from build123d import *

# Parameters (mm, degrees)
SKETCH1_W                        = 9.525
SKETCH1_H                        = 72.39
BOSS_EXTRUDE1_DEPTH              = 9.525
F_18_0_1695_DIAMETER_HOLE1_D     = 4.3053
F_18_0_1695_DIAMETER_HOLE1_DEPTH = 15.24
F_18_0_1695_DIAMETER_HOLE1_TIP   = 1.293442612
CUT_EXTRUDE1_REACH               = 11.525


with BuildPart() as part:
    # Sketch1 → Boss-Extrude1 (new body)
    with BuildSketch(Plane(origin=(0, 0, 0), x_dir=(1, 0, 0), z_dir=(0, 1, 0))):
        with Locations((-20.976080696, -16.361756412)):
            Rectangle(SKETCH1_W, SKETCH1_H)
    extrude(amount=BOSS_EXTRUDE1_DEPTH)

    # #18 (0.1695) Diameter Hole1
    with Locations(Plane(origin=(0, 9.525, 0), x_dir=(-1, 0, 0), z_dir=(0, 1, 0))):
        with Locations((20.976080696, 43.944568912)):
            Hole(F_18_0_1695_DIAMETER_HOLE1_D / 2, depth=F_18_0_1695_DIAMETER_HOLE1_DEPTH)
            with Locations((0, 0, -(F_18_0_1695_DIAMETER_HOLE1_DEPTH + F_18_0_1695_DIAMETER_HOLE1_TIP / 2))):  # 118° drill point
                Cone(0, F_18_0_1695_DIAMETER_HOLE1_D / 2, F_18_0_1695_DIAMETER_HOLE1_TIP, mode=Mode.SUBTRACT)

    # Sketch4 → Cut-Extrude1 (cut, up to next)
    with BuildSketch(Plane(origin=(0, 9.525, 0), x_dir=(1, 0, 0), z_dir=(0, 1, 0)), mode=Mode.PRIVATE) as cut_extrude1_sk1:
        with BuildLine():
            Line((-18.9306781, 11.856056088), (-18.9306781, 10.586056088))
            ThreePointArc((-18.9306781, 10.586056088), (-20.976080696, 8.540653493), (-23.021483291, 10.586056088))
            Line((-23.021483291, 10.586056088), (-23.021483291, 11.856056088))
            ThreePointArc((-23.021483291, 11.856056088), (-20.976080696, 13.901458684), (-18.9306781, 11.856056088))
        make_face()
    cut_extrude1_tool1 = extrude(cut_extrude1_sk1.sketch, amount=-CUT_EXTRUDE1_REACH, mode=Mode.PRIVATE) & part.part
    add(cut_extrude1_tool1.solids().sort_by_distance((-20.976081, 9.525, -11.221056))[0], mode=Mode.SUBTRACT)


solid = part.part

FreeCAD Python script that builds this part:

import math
import FreeCAD as App
import Part
import Sketcher
Q = App.Units.Quantity


def add_polygon(sketch, points):
    """Adds a closed chain of lines whose ends are joined by coincident constraints."""
    first, n = sketch.GeometryCount, len(points)
    for a, b in zip(points, points[1:] + points[:1]):
        sketch.addGeometry(Part.LineSegment(App.Vector(*a, 0), App.Vector(*b, 0)), False)
    for i in range(n):
        sketch.addConstraint(Sketcher.Constraint("Coincident", first + i, 2, first + (i + 1) % n, 1))

doc = App.newDocument("Part")
params = doc.addObject("Spreadsheet::Sheet", "Params")
for row, (alias, value) in enumerate([
    ("sketch1_height", "2.85 in"),
    ("sketch1_width", "0.375 in"),
    ("pad1_length", "0.375 in"),
    ("hole_diameter", "0.1695 in"),
    ("hole_depth", "0.6 in"),
    ("sketch3_height", "0.05 in"),
], start=1):
    params.set(f"A{row}", alias)
    params.set(f"B{row}", "=" + value)
    params.setAlias(f"B{row}", alias)

body = doc.addObject("PartDesign::Body", "Body")

sketch1 = body.newObject("Sketcher::SketchObject", "Sketch")
sketch1.AttachmentSupport = (doc.getObject("XZ_Plane"), [""])
sketch1.MapMode = "FlatFace"
add_polygon(sketch1, [(-25.738581, -19.833244), (-25.738581, 52.556756), (-16.213581, 52.556756), (-16.213581, -19.833244)])
sketch1.addConstraint([
    Sketcher.Constraint("Vertical", 0),
    Sketcher.Constraint("Horizontal", 1),
    Sketcher.Constraint("Vertical", 2),
    Sketcher.Constraint("Horizontal", 3),
    Sketcher.Constraint("DistanceY", 0, 1, 0, 2, Q("2.85 in")),
    Sketcher.Constraint("DistanceX", 1, 1, 1, 2, Q("0.375 in")),
    Sketcher.Constraint("DistanceX", 0, 2, -1, 1, 25.738581),
    Sketcher.Constraint("DistanceY", -1, 1, 0, 2, 52.556756),
])
sketch1.setExpression("Constraints[8]", "Params.sketch1_height")
sketch1.setExpression("Constraints[9]", "Params.sketch1_width")
pad1 = body.newObject("PartDesign::Pad", "Pad")
pad1.Profile = sketch1
pad1.setExpression("Length", "Params.pad1_length")
pad1.Reversed = True

sketch2 = body.newObject("Sketcher::SketchObject", "Sketch001")
sketch2.AttachmentSupport = (doc.getObject("XZ_Plane"), [""])
sketch2.MapMode = "FlatFace"
sketch2.AttachmentOffset = App.Placement(App.Vector(0, 0, -0.375 * 25.4), App.Rotation())
sketch2.addGeometry(Part.Circle(App.Vector(-20.976081, 43.944569, 0), App.Vector(0, 0, 1), 2.15265), False)
sketch2.addConstraint([
    Sketcher.Constraint("Diameter", 0, Q("0.1695 in")),
    Sketcher.Constraint("DistanceX", 0, 3, -1, 1, 20.976081),
    Sketcher.Constraint("DistanceY", -1, 1, 0, 3, 43.944569),
])
doc.recompute()
hole = body.newObject("PartDesign::Hole", "Hole")
hole.Profile = sketch2
hole.ThreadType = "None"
hole.setExpression("Diameter", "Params.hole_diameter")
hole.DepthType = "Dimension"
hole.setExpression("Depth", "Params.hole_depth")
hole.DrillPoint = "Angled"
hole.DrillPointAngle = 118
hole.Reversed = True

sketch3 = body.newObject("Sketcher::SketchObject", "Sketch002")
sketch3.AttachmentSupport = (doc.getObject("XZ_Plane"), [""])
sketch3.MapMode = "FlatFace"
sketch3.AttachmentOffset = App.Placement(App.Vector(0, 0, -0.375 * 25.4), App.Rotation())
sketch3.addGeometry([
    Part.LineSegment(App.Vector(-18.930678, -10.586056, 0), App.Vector(-18.930678, -11.856056, 0)),
    Part.ArcOfCircle(Part.Circle(App.Vector(-20.976081, -11.856056, 0), App.Vector(0, 0, 1), 2.045403), math.radians(180), math.radians(360)),
    Part.LineSegment(App.Vector(-23.021483, -11.856056, 0), App.Vector(-23.021483, -10.586056, 0)),
    Part.ArcOfCircle(Part.Circle(App.Vector(-20.976081, -10.586056, 0), App.Vector(0, 0, 1), 2.045403), math.radians(0), math.radians(180)),
], False)
sketch3.addConstraint([
    Sketcher.Constraint("Tangent", 0, 2, 1, 2),
    Sketcher.Constraint("Tangent", 1, 1, 2, 1),
    Sketcher.Constraint("Tangent", 2, 2, 3, 2),
    Sketcher.Constraint("Tangent", 3, 1, 0, 1),
    Sketcher.Constraint("Vertical", 0),
    Sketcher.Constraint("Vertical", 2),
    Sketcher.Constraint("DistanceY", 0, 2, 0, 1, Q("0.05 in")),
    Sketcher.Constraint("Radius", 1, 2.045403),
    Sketcher.Constraint("DistanceX", 1, 3, -1, 1, 20.976081),
    Sketcher.Constraint("DistanceY", 1, 3, -1, 1, 11.856056),
])
sketch3.setExpression("Constraints[6]", "Params.sketch3_height")
pocket1 = body.newObject("PartDesign::Pocket", "Pocket")
pocket1.Profile = sketch3
pocket1.Type = "UpToFirst"
pocket1.Reversed = True

doc.recompute()
